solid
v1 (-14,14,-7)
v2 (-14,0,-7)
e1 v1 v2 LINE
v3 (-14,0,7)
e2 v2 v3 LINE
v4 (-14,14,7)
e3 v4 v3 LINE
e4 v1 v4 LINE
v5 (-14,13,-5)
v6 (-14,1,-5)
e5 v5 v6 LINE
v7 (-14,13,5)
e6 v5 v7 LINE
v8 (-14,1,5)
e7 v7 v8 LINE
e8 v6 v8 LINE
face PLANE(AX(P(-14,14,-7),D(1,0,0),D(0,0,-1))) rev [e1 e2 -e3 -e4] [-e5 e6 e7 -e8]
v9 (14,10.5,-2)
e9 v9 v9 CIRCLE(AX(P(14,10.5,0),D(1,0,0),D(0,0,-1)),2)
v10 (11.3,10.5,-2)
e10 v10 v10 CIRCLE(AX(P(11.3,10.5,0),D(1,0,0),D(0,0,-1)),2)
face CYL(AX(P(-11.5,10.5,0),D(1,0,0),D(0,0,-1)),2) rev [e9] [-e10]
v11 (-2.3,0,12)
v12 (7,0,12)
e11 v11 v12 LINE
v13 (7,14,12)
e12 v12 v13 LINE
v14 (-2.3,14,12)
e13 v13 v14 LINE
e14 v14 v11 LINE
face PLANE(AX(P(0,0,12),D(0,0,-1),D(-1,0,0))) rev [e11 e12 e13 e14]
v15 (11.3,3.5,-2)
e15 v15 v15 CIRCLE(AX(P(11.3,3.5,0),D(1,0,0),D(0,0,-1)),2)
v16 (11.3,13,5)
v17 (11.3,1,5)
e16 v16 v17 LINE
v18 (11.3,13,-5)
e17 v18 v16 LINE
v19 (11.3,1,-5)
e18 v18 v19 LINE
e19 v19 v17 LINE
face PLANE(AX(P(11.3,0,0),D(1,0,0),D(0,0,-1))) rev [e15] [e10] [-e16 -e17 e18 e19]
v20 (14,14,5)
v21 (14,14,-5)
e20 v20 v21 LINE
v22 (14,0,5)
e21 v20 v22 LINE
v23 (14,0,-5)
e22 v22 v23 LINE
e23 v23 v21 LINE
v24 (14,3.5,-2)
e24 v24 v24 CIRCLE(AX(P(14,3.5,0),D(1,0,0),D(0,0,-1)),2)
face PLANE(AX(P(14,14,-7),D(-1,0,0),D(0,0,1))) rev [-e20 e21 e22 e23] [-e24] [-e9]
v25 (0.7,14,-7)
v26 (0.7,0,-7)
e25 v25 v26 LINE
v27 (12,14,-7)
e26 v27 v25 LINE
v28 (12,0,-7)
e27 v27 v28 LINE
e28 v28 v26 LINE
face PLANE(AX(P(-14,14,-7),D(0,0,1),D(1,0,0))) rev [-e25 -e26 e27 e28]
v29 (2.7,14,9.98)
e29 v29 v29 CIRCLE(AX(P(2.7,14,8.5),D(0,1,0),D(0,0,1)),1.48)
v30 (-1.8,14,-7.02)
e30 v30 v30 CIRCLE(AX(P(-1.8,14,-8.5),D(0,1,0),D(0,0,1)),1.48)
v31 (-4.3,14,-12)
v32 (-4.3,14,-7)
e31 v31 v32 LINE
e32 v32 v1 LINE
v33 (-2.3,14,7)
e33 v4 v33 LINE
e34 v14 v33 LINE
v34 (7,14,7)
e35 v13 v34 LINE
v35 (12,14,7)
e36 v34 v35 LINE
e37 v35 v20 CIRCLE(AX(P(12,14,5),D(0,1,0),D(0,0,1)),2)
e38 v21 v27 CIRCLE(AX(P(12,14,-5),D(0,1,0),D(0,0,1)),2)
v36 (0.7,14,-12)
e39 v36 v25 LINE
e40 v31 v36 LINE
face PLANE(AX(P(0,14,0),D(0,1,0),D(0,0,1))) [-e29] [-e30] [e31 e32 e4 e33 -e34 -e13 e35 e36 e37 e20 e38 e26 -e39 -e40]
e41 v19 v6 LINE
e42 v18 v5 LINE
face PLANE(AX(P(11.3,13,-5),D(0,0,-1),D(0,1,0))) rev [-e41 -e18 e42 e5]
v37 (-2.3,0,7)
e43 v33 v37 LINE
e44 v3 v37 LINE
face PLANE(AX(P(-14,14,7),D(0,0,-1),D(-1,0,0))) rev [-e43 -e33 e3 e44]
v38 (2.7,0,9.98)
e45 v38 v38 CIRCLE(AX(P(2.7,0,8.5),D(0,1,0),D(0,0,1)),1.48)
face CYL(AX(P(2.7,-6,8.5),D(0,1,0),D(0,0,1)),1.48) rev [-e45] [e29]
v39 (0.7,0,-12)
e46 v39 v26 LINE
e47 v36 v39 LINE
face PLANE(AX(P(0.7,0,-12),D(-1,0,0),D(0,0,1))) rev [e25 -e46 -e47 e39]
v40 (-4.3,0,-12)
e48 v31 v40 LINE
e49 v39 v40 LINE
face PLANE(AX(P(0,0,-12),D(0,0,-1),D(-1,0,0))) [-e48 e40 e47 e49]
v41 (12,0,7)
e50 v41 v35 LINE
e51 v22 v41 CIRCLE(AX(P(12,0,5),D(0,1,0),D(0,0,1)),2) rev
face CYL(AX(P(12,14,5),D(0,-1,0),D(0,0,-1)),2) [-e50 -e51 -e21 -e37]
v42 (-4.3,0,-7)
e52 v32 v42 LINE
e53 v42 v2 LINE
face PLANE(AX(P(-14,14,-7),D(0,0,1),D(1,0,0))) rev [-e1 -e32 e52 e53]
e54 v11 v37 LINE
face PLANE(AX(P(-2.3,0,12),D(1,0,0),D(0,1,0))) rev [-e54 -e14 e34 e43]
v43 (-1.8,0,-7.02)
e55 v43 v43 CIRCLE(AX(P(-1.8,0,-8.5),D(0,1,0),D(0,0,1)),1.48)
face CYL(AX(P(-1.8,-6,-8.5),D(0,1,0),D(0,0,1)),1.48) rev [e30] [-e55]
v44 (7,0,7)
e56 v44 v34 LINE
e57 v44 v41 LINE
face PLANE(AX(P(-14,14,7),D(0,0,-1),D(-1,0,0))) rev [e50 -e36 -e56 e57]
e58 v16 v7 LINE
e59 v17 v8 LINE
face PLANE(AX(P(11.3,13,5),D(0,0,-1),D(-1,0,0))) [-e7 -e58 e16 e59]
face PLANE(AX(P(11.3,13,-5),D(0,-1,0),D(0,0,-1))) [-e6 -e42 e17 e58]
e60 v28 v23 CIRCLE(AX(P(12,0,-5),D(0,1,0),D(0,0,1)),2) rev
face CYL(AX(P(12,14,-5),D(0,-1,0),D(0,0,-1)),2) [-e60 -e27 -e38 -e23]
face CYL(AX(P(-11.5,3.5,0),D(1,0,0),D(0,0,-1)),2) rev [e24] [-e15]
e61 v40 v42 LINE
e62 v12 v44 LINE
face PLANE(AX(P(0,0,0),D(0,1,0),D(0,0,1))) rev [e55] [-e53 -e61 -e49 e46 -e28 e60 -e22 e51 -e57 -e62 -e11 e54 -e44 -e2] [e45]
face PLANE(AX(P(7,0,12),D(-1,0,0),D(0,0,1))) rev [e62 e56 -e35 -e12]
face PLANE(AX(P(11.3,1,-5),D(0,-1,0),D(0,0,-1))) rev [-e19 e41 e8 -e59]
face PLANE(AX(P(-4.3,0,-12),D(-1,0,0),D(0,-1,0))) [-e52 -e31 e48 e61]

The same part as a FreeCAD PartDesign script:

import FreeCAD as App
import Part
import Sketcher
Q = App.Units.Quantity


def edges_at(feature, points):
    """Names of the edges that pass closest to the given points."""
    edges = feature.Shape.Edges
    near = lambda p: min(range(len(edges)), key=lambda i: edges[i].distToShape(Part.Vertex(*p))[0])
    return sorted({f"Edge{near(p) + 1}" for p in points})

doc = App.newDocument("Part")
params = doc.addObject("Spreadsheet::Sheet", "Params")
for row, (alias, value) in enumerate([
    ("sketch1_width", "28 mm"),
    ("sketch1_height", "14 mm"),
    ("pad1_length", "14 mm"),
    ("sketch2_width", "12 mm"),
    ("sketch2_height", "10 mm"),
    ("pocket1_length", "25.3 mm"),
    ("sketch3_diameter", "4 mm"),
    ("pocket2_length", "25.5 mm"),
    ("fillet_radius", "2 mm"),
    ("sketch4_height", "14 mm"),
    ("sketch4_width", "9.3 mm"),
    ("pad2_length", "5 mm"),
    ("sketch5_width", "5 mm"),
    ("sketch5_height", "14 mm"),
    ("pad3_length", "5 mm"),
    ("sketch6_diameter", "2.96 mm"),
    ("pocket3_length", "20 mm"),
], start=1):
    params.set(f"A{row}", alias)
    params.set(f"B{row}", "=" + value)
    params.setAlias(f"B{row}", alias)

body = doc.addObject("PartDesign::Body", "Body")

# Sketch on XZ plane
sketch1 = body.newObject("Sketcher::SketchObject", "Sketch")
sketch1.AttachmentSupport = (doc.getObject("XZ_Plane"), [""])
sketch1.MapMode = "FlatFace"
sketch1.addGeometry(Part.LineSegment(App.Vector(-14, -7, 0), App.Vector(-14, 7, 0)), False)
sketch1.addGeometry(Part.LineSegment(App.Vector(-14, 7, 0), App.Vector(14, 7, 0)), False)
sketch1.addGeometry(Part.LineSegment(App.Vector(14, 7, 0), App.Vector(14, -7, 0)), False)
sketch1.addGeometry(Part.LineSegment(App.Vector(14, -7, 0), App.Vector(-14, -7, 0)), False)
sketch1.addConstraint(Sketcher.Constraint("Coincident", 0, 2, 1, 1))
sketch1.addConstraint(Sketcher.Constraint("Coincident", 1, 2, 2, 1))
sketch1.addConstraint(Sketcher.Constraint("Coincident", 2, 2, 3, 1))
sketch1.addConstraint(Sketcher.Constraint("Coincident", 3, 2, 0, 1))
sketch1.addConstraint(Sketcher.Constraint("Vertical", 0))
sketch1.addConstraint(Sketcher.Constraint("Horizontal", 1))
sketch1.addConstraint(Sketcher.Constraint("Vertical", 2))
sketch1.addConstraint(Sketcher.Constraint("Horizontal", 3))
sketch1.addConstraint(Sketcher.Constraint("Symmetric", 0, 2, 2, 2, -1, 1))
sketch1.addConstraint(Sketcher.Constraint("DistanceX", 1, 1, 1, 2, Q("28 mm")))
sketch1.addConstraint(Sketcher.Constraint("DistanceY", 0, 1, 0, 2, Q("14 mm")))
sketch1.setExpression("Constraints[9]", "Params.sketch1_width")
sketch1.setExpression("Constraints[10]", "Params.sketch1_height")
pad1 = body.newObject("PartDesign::Pad", "Pad")
pad1.Profile = sketch1
pad1.setExpression("Length", "Params.pad1_length")
pad1.Reversed = True

# Sketch on YZ plane
sketch2 = body.newObject("Sketcher::SketchObject", "Sketch001")
sketch2.AttachmentSupport = (doc.getObject("YZ_Plane"), [""])
sketch2.MapMode = "FlatFace"
sketch2.AttachmentOffset = App.Placement(App.Vector(0, 0, -14), App.Rotation())
sketch2.addGeometry(Part.LineSegment(App.Vector(13, -5, 0), App.Vector(1, -5, 0)), False)
sketch2.addGeometry(Part.LineSegment(App.Vector(1, -5, 0), App.Vector(1, 5, 0)), False)
sketch2.addGeometry(Part.LineSegment(App.Vector(1, 5, 0), App.Vector(13, 5, 0)), False)
sketch2.addGeometry(Part.LineSegment(App.Vector(13, 5, 0), App.Vector(13, -5, 0)), False)
sketch2.addConstraint(Sketcher.Constraint("Coincident", 0, 2, 1, 1))
sketch2.addConstraint(Sketcher.Constraint("Coincident", 1, 2, 2, 1))
sketch2.addConstraint(Sketcher.Constraint("Coincident", 2, 2, 3, 1))
sketch2.addConstraint(Sketcher.Constraint("Coincident", 3, 2, 0, 1))
sketch2.addConstraint(Sketcher.Constraint("Horizontal", 0))
sketch2.addConstraint(Sketcher.Constraint("Vertical", 1))
sketch2.addConstraint(Sketcher.Constraint("Horizontal", 2))
sketch2.addConstraint(Sketcher.Constraint("Vertical", 3))
sketch2.addConstraint(Sketcher.Constraint("DistanceX", 0, 2, 0, 1, Q("12 mm")))
sketch2.addConstraint(Sketcher.Constraint("DistanceY", 1, 1, 1, 2, Q("10 mm")))
sketch2.addConstraint(Sketcher.Constraint("DistanceX", -1, 1, 0, 2, Q("1 mm")))
sketch2.addConstraint(Sketcher.Constraint("DistanceY", 0, 2, -1, 1, Q("5 mm")))
sketch2.setExpression("Constraints[8]", "Params.sketch2_width")
sketch2.setExpression("Constraints[9]", "Params.sketch2_height")
pocket1 = body.newObject("PartDesign::Pocket", "Pocket")
pocket1.Profile = sketch2
pocket1.setExpression("Length", "Params.pocket1_length")
pocket1.Reversed = True

# Sketch on YZ plane
sketch3 = body.newObject("Sketcher::SketchObject", "Sketch002")
sketch3.AttachmentSupport = (doc.getObject("YZ_Plane"), [""])
sketch3.MapMode = "FlatFace"
sketch3.AttachmentOffset = App.Placement(App.Vector(0, 0, 14), App.Rotation())
sketch3.addGeometry(Part.Circle(App.Vector(10.5, 0, 0), App.Vector(0, 0, 1), 2), False)
sketch3.addGeometry(Part.Circle(App.Vector(3.5, 0, 0), App.Vector(0, 0, 1), 2), False)
sketch3.addConstraint(Sketcher.Constraint("Equal", 0, 1))
sketch3.addConstraint(Sketcher.Constraint("PointOnObject", 0, 3, -1))
sketch3.addConstraint(Sketcher.Constraint("PointOnObject", 1, 3, -1))
sketch3.addConstraint(Sketcher.Constraint("Diameter", 0, Q("4 mm")))
sketch3.addConstraint(Sketcher.Constraint("DistanceX", 1, 3, 0, 3, Q("7 mm")))
sketch3.addConstraint(Sketcher.Constraint("DistanceX", -1, 1, 0, 3, Q("10.5 mm")))
sketch3.setExpression("Constraints[3]", "Params.sketch3_diameter")
pocket2 = body.newObject("PartDesign::Pocket", "Pocket001")
pocket2.Profile = sketch3
pocket2.setExpression("Length", "Params.pocket2_length")
doc.recompute()

fillet = body.newObject("PartDesign::Fillet", "Fillet")
fillet.Base = (pocket2, edges_at(pocket2, [(14, 7, 7), (14, 7, -7)]))
fillet.setExpression("Radius", "Params.fillet_radius")

# Sketch on XY plane
sketch4 = body.newObject("Sketcher::SketchObject", "Sketch003")
sketch4.AttachmentSupport = (doc.getObject("XY_Plane"), [""])
sketch4.MapMode = "FlatFace"
sketch4.AttachmentOffset = App.Placement(App.Vector(0, 0, 7), App.Rotation())
sketch4.addGeometry(Part.LineSegment(App.Vector(-2, 14, 0), App.Vector(-2, 0, 0)), False)
sketch4.addGeometry(Part.LineSegment(App.Vector(-2, 0, 0), App.Vector(7, 0, 0)), False)
sketch4.addGeometry(Part.LineSegment(App.Vector(7, 0, 0), App.Vector(7, 14, 0)), False)
sketch4.addGeometry(Part.LineSegment(App.Vector(7, 14, 0), App.Vector(-2, 14, 0)), False)
sketch4.addConstraint(Sketcher.Constraint("Coincident", 0, 2, 1, 1))
sketch4.addConstraint(Sketcher.Constraint("Coincident", 1, 2, 2, 1))
sketch4.addConstraint(Sketcher.Constraint("Coincident", 2, 2, 3, 1))
sketch4.addConstraint(Sketcher.Constraint("Coincident", 3, 2, 0, 1))
sketch4.addConstraint(Sketcher.Constraint("Vertical", 0))
sketch4.addConstraint(Sketcher.Constraint("Horizontal", 1))
sketch4.addConstraint(Sketcher.Constraint("Vertical", 2))
sketch4.addConstraint(Sketcher.Constraint("Horizontal", 3))
sketch4.addConstraint(Sketcher.Constraint("PointOnObject", 0, 2, -1))
sketch4.addConstraint(Sketcher.Constraint("DistanceY", 0, 2, 0, 1, Q("14 mm")))
sketch4.addConstraint(Sketcher.Constraint("DistanceX", 1, 1, 1, 2, Q("9.3 mm")))
sketch4.addConstraint(Sketcher.Constraint("DistanceX", -1, 1, 1, 2, Q("7 mm")))
sketch4.setExpression("Constraints[9]", "Params.sketch4_height")
sketch4.setExpression("Constraints[10]", "Params.sketch4_width")
pad2 = body.newObject("PartDesign::Pad", "Pad001")
pad2.Profile = sketch4
pad2.setExpression("Length", "Params.pad2_length")

# Sketch on XY plane
sketch5 = body.newObject("Sketcher::SketchObject", "Sketch004")
sketch5.AttachmentSupport = (doc.getObject("XY_Plane"), [""])
sketch5.MapMode = "FlatFace"
sketch5.AttachmentOffset = App.Placement(App.Vector(0, 0, -7), App.Rotation())
sketch5.addGeometry(Part.LineSegment(App.Vector(1, 14, 0), App.Vector(1, 0, 0)), False)
sketch5.addGeometry(Part.LineSegment(App.Vector(1, 0, 0), App.Vector(-4, 0, 0)), False)
sketch5.addGeometry(Part.LineSegment(App.Vector(-4, 0, 0), App.Vector(-4, 14, 0)), False)
sketch5.addGeometry(Part.LineSegment(App.Vector(-4, 14, 0), App.Vector(1, 14, 0)), False)
sketch5.addConstraint(Sketcher.Constraint("Coincident", 0, 2, 1, 1))
sketch5.addConstraint(Sketcher.Constraint("Coincident", 1, 2, 2, 1))
sketch5.addConstraint(Sketcher.Constraint("Coincident", 2, 2, 3, 1))
sketch5.addConstraint(Sketcher.Constraint("Coincident", 3, 2, 0, 1))
sketch5.addConstraint(Sketcher.Constraint("Vertical", 0))
sketch5.addConstraint(Sketcher.Constraint("Horizontal", 1))
sketch5.addConstraint(Sketcher.Constraint("Vertical", 2))
sketch5.addConstraint(Sketcher.Constraint("Horizontal", 3))
sketch5.addConstraint(Sketcher.Constraint("PointOnObject", 0, 2, -1))
sketch5.addConstraint(Sketcher.Constraint("DistanceX", 1, 2, 1, 1, Q("5 mm")))
sketch5.addConstraint(Sketcher.Constraint("DistanceY", 0, 2, 0, 1, Q("14 mm")))
sketch5.addConstraint(Sketcher.Constraint("DistanceX", -1, 1, 0, 2, Q("0.7 mm")))
sketch5.setExpression("Constraints[9]", "Params.sketch5_width")
sketch5.setExpression("Constraints[10]", "Params.sketch5_height")
pad3 = body.newObject("PartDesign::Pad", "Pad002")
pad3.Profile = sketch5
pad3.setExpression("Length", "Params.pad3_length")
pad3.Reversed = True

# Sketch on XZ plane
sketch6 = body.newObject("Sketcher::SketchObject", "Sketch005")
sketch6.AttachmentSupport = (doc.getObject("XZ_Plane"), [""])
sketch6.MapMode = "FlatFace"
sketch6.AttachmentOffset = App.Placement(App.Vector(0, 0, -14), App.Rotation())
sketch6.addGeometry(Part.Circle(App.Vector(2.7, 8.5, 0), App.Vector(0, 0, 1), 1.5), False)
sketch6.addGeometry(Part.Circle(App.Vector(-1.8, -8.5, 0), App.Vector(0, 0, 1), 1.5), False)
sketch6.addConstraint(Sketcher.Constraint("Equal", 0, 1))
sketch6.addConstraint(Sketcher.Constraint("Diameter", 0, Q("2.96 mm")))
sketch6.addConstraint(Sketcher.Constraint("DistanceY", 1, 3, 0, 3, Q("17 mm")))
sketch6.addConstraint(Sketcher.Constraint("DistanceX", -1, 1, 0, 3, Q("2.7 mm")))
sketch6.addConstraint(Sketcher.Constraint("DistanceY", -1, 1, 0, 3, Q("8.5 mm")))
sketch6.addConstraint(Sketcher.Constraint("DistanceX", 1, 3, -1, 1, Q("1.8 mm")))
sketch6.setExpression("Constraints[1]", "Params.sketch6_diameter")
pocket3 = body.newObject("PartDesign::Pocket", "Pocket002")
pocket3.Profile = sketch6
pocket3.setExpression("Length", "Params.pocket3_length")
pocket3.Reversed = True

doc.recompute()
